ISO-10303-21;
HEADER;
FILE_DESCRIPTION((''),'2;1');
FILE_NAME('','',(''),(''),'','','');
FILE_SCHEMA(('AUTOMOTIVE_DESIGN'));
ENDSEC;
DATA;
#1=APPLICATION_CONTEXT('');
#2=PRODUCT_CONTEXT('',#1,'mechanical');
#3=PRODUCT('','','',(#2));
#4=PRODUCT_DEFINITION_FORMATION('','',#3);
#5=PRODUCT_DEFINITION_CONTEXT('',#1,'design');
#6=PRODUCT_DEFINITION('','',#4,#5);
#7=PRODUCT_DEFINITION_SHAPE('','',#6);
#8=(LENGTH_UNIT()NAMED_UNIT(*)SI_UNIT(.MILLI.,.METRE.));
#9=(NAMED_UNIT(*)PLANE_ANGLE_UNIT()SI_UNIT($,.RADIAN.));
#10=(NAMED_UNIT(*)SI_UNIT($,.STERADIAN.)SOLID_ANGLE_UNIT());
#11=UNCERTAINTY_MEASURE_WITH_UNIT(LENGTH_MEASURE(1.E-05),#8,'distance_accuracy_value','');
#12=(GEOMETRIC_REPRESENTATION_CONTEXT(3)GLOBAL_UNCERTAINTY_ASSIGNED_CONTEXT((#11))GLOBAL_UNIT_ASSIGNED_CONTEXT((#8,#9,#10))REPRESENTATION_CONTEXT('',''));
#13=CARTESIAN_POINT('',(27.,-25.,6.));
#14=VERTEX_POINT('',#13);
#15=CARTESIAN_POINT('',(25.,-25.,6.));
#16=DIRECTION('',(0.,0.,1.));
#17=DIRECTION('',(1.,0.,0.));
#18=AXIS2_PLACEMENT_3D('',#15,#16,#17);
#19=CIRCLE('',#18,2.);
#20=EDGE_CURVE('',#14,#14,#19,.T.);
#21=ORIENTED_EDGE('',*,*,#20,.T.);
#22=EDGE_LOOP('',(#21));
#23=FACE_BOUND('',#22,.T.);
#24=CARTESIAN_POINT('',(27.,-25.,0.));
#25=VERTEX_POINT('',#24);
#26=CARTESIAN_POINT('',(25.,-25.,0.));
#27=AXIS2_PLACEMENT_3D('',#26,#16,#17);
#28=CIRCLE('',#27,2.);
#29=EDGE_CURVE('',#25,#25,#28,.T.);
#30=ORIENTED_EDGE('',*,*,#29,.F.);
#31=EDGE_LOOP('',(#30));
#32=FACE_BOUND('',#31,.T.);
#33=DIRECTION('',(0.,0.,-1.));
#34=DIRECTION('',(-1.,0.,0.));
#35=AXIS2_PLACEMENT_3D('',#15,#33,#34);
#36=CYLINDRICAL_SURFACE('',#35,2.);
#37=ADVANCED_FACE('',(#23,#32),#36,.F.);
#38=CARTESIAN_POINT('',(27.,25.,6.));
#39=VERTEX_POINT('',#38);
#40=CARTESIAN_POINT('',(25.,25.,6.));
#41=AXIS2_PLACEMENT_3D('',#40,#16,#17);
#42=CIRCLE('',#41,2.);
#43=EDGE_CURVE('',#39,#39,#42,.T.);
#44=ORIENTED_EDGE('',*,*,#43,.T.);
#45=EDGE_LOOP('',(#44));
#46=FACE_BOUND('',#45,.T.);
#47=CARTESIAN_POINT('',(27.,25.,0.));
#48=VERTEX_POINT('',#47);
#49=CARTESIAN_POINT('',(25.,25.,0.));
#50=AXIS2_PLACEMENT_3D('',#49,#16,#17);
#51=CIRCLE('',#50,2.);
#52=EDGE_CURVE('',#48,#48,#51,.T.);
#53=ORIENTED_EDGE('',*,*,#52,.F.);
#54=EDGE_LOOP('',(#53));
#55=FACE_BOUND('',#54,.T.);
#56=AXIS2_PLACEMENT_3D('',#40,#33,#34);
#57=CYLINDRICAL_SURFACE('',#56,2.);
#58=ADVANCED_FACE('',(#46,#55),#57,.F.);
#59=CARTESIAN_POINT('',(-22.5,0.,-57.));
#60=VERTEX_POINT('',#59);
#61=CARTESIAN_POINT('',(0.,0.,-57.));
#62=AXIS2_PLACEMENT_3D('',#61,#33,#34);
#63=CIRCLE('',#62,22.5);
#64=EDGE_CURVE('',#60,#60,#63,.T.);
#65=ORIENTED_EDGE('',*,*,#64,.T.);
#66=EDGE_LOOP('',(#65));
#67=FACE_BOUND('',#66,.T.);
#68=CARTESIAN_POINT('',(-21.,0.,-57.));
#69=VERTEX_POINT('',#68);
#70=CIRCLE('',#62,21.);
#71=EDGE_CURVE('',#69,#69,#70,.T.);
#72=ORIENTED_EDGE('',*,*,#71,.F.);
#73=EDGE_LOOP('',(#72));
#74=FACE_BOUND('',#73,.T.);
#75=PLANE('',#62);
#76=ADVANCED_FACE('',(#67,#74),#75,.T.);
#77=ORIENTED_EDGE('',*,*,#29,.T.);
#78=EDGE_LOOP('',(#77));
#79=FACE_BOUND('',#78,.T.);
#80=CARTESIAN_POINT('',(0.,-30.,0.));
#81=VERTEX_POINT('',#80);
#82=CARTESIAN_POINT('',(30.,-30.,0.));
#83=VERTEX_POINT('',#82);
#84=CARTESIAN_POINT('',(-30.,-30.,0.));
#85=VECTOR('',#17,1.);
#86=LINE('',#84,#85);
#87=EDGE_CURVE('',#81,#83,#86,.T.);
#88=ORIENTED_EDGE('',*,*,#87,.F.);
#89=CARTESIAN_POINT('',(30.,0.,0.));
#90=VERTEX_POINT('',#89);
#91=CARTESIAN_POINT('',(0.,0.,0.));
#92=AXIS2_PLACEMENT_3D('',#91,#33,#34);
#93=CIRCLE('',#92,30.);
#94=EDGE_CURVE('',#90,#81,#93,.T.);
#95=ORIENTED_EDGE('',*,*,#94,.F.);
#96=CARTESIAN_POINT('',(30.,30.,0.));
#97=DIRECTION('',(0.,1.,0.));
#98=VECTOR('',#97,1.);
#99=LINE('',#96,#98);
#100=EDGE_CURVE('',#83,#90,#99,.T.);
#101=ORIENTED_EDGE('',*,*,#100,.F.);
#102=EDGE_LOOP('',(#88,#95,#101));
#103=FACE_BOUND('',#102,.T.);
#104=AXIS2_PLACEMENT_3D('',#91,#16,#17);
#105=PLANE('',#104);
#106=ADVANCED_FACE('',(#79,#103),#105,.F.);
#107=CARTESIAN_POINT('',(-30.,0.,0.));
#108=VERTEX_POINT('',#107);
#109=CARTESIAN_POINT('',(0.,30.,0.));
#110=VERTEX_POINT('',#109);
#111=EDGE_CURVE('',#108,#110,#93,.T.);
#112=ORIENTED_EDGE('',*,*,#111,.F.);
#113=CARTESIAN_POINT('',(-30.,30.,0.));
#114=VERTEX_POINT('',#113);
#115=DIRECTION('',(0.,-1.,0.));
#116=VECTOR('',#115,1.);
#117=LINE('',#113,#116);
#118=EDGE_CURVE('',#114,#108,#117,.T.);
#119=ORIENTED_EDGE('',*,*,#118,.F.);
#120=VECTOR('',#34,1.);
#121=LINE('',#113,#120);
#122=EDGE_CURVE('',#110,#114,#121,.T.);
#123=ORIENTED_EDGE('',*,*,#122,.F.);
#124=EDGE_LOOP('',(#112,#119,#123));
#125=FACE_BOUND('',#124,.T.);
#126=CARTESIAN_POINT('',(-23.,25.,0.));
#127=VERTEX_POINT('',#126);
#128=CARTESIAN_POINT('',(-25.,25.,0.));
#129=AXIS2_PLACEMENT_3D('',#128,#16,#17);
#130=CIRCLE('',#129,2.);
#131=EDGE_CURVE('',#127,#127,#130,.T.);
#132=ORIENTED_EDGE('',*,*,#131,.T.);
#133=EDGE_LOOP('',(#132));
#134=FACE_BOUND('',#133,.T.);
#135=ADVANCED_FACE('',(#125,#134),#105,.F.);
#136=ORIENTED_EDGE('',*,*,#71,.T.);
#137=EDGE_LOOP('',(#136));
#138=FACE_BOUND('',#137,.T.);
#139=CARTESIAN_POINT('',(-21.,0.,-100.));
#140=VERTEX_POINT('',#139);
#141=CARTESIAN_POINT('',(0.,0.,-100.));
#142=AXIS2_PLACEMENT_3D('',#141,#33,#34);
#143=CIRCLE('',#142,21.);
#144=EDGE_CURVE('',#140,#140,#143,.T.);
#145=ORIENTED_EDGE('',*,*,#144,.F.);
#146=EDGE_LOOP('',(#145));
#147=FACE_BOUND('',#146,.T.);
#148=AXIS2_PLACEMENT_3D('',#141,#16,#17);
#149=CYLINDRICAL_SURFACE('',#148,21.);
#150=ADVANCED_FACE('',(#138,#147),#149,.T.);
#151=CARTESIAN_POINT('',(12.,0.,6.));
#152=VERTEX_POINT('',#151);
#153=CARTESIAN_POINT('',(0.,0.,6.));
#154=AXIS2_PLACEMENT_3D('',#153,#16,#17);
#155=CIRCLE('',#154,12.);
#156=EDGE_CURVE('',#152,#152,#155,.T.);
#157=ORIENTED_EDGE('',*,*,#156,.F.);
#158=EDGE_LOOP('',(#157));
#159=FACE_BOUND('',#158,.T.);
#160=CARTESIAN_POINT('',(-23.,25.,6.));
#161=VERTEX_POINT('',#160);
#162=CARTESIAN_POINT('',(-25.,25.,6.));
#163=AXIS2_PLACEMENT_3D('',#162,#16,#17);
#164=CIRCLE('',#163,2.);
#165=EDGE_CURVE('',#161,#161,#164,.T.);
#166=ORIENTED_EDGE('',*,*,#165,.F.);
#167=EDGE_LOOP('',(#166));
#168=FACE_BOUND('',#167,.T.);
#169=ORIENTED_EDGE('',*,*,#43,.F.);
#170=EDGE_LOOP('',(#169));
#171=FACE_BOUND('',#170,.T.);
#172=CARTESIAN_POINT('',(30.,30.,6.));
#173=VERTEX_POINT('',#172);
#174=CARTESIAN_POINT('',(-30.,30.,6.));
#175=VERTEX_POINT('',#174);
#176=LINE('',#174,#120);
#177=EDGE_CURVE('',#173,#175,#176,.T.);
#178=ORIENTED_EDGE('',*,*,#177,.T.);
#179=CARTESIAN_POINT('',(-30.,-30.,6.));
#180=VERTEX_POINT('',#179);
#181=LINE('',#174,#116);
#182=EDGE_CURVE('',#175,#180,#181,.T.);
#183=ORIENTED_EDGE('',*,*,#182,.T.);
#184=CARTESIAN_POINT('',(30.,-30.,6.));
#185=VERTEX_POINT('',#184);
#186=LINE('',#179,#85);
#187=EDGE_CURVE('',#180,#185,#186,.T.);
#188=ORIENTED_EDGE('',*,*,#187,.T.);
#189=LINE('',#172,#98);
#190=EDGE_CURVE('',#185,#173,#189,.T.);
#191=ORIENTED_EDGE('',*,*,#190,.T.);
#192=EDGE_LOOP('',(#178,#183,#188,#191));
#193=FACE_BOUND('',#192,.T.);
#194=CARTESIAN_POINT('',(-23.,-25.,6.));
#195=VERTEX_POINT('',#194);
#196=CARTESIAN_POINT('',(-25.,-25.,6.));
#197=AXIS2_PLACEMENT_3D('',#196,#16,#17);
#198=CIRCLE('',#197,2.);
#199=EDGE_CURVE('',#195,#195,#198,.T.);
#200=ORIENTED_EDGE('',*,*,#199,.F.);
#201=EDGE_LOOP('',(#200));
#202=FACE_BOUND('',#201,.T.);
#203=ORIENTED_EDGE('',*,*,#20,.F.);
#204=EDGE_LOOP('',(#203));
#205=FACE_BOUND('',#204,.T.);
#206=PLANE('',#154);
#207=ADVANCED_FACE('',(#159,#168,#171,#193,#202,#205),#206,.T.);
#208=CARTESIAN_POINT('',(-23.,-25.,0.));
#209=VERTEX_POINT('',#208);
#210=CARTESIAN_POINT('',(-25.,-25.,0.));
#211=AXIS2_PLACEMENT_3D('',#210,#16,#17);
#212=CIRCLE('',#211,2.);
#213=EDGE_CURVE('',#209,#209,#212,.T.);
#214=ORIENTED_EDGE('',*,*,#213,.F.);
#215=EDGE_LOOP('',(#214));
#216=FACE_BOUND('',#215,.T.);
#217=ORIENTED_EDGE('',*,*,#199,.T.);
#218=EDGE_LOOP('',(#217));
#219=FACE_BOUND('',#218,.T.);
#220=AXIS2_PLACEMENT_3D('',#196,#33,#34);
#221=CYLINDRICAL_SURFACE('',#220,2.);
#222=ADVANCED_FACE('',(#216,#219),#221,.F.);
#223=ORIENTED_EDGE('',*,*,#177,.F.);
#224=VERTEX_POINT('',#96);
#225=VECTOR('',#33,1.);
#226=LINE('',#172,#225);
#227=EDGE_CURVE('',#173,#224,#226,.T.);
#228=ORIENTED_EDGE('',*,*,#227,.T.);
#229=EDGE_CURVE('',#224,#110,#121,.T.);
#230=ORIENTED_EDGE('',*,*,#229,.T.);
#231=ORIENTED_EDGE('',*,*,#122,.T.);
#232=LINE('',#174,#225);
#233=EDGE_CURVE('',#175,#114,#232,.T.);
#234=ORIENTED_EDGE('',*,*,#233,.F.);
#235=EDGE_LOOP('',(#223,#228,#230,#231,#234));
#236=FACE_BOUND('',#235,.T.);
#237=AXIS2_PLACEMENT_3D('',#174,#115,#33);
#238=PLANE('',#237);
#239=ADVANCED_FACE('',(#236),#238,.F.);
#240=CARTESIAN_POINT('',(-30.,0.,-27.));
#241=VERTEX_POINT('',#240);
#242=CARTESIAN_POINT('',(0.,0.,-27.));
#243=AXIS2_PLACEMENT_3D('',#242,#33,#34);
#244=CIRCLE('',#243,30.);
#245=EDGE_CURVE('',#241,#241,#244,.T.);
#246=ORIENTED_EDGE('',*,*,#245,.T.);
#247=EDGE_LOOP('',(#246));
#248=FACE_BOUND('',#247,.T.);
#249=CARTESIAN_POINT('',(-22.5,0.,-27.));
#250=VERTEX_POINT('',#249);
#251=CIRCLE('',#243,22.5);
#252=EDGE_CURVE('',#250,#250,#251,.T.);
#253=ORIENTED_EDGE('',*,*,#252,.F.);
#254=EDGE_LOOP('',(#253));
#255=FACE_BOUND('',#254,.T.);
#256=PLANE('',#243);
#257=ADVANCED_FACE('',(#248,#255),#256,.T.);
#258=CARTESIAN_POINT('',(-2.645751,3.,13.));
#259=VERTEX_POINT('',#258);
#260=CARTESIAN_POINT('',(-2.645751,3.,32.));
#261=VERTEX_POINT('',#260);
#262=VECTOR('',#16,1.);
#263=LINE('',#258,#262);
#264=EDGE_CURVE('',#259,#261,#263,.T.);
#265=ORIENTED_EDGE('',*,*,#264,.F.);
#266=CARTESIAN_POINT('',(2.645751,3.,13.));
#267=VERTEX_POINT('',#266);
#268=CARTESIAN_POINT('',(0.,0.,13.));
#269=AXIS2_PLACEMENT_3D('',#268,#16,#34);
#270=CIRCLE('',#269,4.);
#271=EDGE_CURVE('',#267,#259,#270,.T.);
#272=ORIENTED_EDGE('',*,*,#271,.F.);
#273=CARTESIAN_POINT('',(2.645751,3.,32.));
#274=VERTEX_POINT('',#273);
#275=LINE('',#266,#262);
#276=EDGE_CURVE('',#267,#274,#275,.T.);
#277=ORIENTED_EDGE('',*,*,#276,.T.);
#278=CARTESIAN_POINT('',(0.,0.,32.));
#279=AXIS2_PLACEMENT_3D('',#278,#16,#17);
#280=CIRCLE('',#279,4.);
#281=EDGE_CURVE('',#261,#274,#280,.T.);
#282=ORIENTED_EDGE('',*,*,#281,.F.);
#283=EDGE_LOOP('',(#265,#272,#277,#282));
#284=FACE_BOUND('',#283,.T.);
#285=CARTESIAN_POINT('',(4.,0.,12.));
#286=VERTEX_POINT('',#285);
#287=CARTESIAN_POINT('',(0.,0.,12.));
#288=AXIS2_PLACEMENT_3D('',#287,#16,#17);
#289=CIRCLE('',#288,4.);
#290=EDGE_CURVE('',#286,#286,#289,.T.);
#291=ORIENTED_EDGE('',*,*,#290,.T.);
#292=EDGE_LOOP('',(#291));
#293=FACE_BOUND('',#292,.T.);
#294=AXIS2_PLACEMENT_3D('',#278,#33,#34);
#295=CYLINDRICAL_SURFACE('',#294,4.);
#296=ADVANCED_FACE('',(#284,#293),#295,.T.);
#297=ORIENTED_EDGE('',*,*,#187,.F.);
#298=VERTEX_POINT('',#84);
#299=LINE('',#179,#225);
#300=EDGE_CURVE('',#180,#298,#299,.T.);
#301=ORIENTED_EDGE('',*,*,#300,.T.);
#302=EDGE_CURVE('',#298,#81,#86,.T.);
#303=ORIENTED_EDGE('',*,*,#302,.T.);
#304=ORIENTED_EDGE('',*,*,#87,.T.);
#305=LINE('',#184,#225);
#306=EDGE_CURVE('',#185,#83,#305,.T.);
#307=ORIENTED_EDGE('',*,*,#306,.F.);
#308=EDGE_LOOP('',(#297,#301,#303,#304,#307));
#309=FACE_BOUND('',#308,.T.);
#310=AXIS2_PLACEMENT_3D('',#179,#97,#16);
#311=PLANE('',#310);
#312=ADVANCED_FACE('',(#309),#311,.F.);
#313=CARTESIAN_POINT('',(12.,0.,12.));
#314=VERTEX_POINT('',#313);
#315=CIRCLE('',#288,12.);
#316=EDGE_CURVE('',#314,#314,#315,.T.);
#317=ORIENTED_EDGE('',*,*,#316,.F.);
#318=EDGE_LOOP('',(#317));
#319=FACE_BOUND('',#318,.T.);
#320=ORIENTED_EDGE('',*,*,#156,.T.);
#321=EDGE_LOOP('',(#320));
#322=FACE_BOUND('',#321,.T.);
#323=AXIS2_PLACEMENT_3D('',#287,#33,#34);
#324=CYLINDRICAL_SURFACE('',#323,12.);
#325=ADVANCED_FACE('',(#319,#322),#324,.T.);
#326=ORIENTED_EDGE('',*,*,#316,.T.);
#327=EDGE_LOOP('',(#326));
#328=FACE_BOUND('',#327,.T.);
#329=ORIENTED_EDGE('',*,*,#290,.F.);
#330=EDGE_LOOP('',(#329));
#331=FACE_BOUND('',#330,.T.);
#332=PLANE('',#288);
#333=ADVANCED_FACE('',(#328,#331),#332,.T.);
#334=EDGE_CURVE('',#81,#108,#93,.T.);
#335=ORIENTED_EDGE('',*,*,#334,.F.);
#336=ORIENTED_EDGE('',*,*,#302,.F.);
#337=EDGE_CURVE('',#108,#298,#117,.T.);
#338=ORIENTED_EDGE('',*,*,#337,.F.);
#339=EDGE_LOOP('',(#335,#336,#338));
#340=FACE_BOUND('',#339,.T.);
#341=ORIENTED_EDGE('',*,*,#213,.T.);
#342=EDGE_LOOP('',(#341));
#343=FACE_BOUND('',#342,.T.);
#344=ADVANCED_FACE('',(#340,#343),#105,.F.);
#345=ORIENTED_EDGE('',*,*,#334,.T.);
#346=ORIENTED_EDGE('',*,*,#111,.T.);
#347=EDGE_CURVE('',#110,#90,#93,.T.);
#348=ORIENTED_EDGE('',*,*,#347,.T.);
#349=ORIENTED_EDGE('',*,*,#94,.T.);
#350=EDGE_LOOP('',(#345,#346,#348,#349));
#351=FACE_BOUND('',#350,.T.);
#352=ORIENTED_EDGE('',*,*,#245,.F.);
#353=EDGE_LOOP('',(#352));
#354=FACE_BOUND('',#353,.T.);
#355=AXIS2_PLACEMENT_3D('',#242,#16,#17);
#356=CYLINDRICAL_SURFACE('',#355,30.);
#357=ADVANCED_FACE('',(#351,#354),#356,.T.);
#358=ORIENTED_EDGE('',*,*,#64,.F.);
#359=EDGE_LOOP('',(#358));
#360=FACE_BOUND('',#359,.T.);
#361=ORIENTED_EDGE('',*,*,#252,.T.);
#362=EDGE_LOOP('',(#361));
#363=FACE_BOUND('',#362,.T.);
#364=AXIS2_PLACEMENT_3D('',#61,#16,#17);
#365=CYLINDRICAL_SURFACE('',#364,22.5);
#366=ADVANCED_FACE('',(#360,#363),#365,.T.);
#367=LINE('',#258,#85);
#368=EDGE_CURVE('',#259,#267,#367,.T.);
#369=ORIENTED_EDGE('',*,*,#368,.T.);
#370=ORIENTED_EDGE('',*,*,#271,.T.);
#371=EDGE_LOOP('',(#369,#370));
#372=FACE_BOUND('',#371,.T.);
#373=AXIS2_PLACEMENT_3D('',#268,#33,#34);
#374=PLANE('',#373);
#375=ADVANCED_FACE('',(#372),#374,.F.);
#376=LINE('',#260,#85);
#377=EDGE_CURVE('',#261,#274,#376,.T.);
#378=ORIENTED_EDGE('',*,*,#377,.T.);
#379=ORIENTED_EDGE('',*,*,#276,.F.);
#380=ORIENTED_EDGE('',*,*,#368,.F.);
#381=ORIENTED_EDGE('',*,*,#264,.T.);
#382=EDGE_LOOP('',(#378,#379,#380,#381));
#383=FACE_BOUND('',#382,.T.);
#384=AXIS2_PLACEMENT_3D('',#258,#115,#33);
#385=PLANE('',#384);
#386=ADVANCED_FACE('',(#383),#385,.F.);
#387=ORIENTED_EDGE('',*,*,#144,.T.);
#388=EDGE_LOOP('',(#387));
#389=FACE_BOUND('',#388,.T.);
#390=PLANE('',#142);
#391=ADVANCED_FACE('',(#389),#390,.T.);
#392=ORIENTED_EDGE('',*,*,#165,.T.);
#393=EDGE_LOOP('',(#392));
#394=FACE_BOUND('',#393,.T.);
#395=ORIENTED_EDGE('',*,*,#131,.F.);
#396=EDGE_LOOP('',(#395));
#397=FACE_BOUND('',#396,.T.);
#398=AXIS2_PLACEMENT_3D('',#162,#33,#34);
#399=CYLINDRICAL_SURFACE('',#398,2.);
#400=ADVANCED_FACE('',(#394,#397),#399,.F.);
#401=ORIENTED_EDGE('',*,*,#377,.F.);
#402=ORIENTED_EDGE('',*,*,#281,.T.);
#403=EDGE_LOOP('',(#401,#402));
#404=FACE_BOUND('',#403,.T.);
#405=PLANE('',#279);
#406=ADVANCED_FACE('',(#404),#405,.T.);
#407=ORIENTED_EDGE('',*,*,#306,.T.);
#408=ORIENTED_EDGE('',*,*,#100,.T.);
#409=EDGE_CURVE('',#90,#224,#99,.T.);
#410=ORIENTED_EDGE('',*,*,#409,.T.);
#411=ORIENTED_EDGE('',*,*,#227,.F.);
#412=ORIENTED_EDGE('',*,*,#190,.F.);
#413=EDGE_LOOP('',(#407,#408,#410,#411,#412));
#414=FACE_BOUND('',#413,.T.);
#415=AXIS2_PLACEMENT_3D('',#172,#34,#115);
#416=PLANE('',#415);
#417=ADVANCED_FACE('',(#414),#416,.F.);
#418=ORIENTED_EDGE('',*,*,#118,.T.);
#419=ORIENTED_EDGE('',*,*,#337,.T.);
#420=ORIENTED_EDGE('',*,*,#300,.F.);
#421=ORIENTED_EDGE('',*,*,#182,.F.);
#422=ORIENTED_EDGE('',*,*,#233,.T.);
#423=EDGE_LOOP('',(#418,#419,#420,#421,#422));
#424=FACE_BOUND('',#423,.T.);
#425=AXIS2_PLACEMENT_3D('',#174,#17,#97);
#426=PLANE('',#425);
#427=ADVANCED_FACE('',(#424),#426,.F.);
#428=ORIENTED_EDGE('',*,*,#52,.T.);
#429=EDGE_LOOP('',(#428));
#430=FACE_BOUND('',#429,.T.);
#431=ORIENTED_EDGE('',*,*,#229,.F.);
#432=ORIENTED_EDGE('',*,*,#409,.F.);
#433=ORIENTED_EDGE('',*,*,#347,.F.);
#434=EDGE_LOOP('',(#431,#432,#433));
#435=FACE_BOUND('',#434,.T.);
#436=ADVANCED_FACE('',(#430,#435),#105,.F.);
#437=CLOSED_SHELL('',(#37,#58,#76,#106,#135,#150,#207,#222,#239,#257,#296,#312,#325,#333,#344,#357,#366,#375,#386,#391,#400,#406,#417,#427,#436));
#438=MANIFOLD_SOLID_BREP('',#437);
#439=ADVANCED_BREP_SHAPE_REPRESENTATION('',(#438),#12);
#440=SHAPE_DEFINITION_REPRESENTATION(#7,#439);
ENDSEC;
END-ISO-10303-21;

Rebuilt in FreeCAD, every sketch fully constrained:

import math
import FreeCAD as App
import Part
import Sketcher
from FreeCAD import Vector


def add_polygon(sketch, points):
    """Adds a closed chain of lines whose ends are joined by coincident constraints."""
    first, n = sketch.GeometryCount, len(points)
    for a, b in zip(points, points[1:] + points[:1]):
        sketch.addGeometry(Part.LineSegment(App.Vector(*a, 0), App.Vector(*b, 0)), False)
    for i in range(n):
        sketch.addConstraint(Sketcher.Constraint("Coincident", first + i, 2, first + (i + 1) % n, 1))

doc = App.newDocument("Part")
body = doc.addObject("PartDesign::Body", "Body")

# Sketch on XY plane
sketch1 = doc.addObject("Sketcher::SketchObject", "Sketch")
body.addObject(sketch1)
sketch1.AttachmentSupport = (doc.XY_Plane, [""])
sketch1.MapMode = "FlatFace"
add_polygon(sketch1, [(-30, 30), (-30, -30), (30, -30), (30, 30)])  # lines 0-3
sketch1.addGeometry(Part.Circle(Vector(-25, -25, 0), Vector(0, 0, 1), 2), False)  # 4
sketch1.addGeometry(Part.Circle(Vector(25, -25, 0), Vector(0, 0, 1), 2), False)  # 5
sketch1.addGeometry(Part.Circle(Vector(-25, 25, 0), Vector(0, 0, 1), 2), False)  # 6
sketch1.addGeometry(Part.Circle(Vector(25, 25, 0), Vector(0, 0, 1), 2), False)  # 7
sketch1.addConstraint([
    Sketcher.Constraint("Vertical", 0),
    Sketcher.Constraint("Horizontal", 1),
    Sketcher.Constraint("Vertical", 2),
    Sketcher.Constraint("Horizontal", 3),
    Sketcher.Constraint("Equal", 4, 5),
    Sketcher.Constraint("Equal", 5, 6),
    Sketcher.Constraint("Equal", 6, 7),
    Sketcher.Constraint("Symmetric", 5, 3, 6, 3, -1, 1),
    Sketcher.Constraint("Symmetric", 4, 3, 7, 3, -1, 1),
    Sketcher.Constraint("Symmetric", 0, 2, 2, 2, -1, 1),
    Sketcher.Constraint("Symmetric", 4, 3, 5, 3, -2),
    Sketcher.Constraint("Equal", 3, 0),
    Sketcher.Constraint("Diameter", 4, 4.0),
    Sketcher.Constraint("DistanceX", 1, 1, 1, 2, 60.0),
    Sketcher.Constraint("DistanceX", 4, 3, -1, 1, 25.0),
    Sketcher.Constraint("DistanceY", 4, 3, -1, 1, 25.0),
])
pad1 = doc.addObject("PartDesign::Pad", "Pad")
body.addObject(pad1)
pad1.Profile = sketch1
pad1.Length = 6

# Sketch on XY plane
sketch2 = doc.addObject("Sketcher::SketchObject", "Sketch001")
body.addObject(sketch2)
sketch2.AttachmentSupport = (doc.XY_Plane, [""])
sketch2.MapMode = "FlatFace"
sketch2.AttachmentOffset = App.Placement(Vector(0, 0, 6), App.Rotation())
sketch2.addGeometry(Part.Circle(Vector(0, 0, 0), Vector(0, 0, 1), 12), False)
sketch2.addConstraint([
    Sketcher.Constraint("Coincident", 0, 3, -1, 1),
    Sketcher.Constraint("Diameter", 0, 24.0),
])
pad2 = doc.addObject("PartDesign::Pad", "Pad001")
body.addObject(pad2)
pad2.Profile = sketch2
pad2.Length = 6

# Sketch on XY plane
sketch3 = doc.addObject("Sketcher::SketchObject", "Sketch002")
body.addObject(sketch3)
sketch3.AttachmentSupport = (doc.XY_Plane, [""])
sketch3.MapMode = "FlatFace"
sketch3.AttachmentOffset = App.Placement(Vector(0, 0, 12), App.Rotation())
sketch3.addGeometry(Part.Circle(Vector(0, 0, 0), Vector(0, 0, 1), 4), False)
sketch3.addConstraint([
    Sketcher.Constraint("Coincident", 0, 3, -1, 1),
    Sketcher.Constraint("Diameter", 0, 8.0),
])
pad3 = doc.addObject("PartDesign::Pad", "Pad002")
body.addObject(pad3)
pad3.Profile = sketch3
pad3.Length = 20

# Sketch on XY plane
sketch4 = doc.addObject("Sketcher::SketchObject", "Sketch003")
body.addObject(sketch4)
sketch4.AttachmentSupport = (doc.XY_Plane, [""])
sketch4.MapMode = "FlatFace"
sketch4.AttachmentOffset = App.Placement(Vector(0, 0, 13), App.Rotation())
sketch4.addGeometry([
    Part.LineSegment(Vector(-2.6, 3, 0), Vector(2.6, 3, 0)),
    Part.ArcOfCircle(Part.Circle(Vector(0, 0, 0), Vector(0, 0, 1), 4), math.radians(49), math.radians(131)),
], False)
sketch4.addConstraint([
    Sketcher.Constraint("Coincident", 0, 1, 1, 2),
    Sketcher.Constraint("Coincident", 1, 1, 0, 2),
    Sketcher.Constraint("Horizontal", 0),
    Sketcher.Constraint("Coincident", 1, 3, -1, 1),
    Sketcher.Constraint("Radius", 1, 4.0),
    Sketcher.Constraint("DistanceY", -1, 1, 0, 1, 3.0),
])
pocket1 = doc.addObject("PartDesign::Pocket", "Pocket")
body.addObject(pocket1)
pocket1.Profile = sketch4
pocket1.Length = 19
pocket1.Reversed = True

# Sketch on XY plane
sketch5 = doc.addObject("Sketcher::SketchObject", "Sketch004")
body.addObject(sketch5)
sketch5.AttachmentSupport = (doc.XY_Plane, [""])
sketch5.MapMode = "FlatFace"
sketch5.addGeometry(Part.Circle(Vector(0, 0, 0), Vector(0, 0, 1), 30), False)
sketch5.addConstraint([
    Sketcher.Constraint("Coincident", 0, 3, -1, 1),
    Sketcher.Constraint("Diameter", 0, 60.0),
])
pad4 = doc.addObject("PartDesign::Pad", "Pad003")
body.addObject(pad4)
pad4.Profile = sketch5
pad4.Length = 27
pad4.Reversed = True

# Sketch on XY plane
sketch6 = doc.addObject("Sketcher::SketchObject", "Sketch005")
body.addObject(sketch6)
sketch6.AttachmentSupport = (doc.XY_Plane, [""])
sketch6.MapMode = "FlatFace"
sketch6.AttachmentOffset = App.Placement(Vector(0, 0, -27), App.Rotation())
sketch6.addGeometry(Part.Circle(Vector(0, 0, 0), Vector(0, 0, 1), 22), False)
sketch6.addConstraint([
    Sketcher.Constraint("Coincident", 0, 3, -1, 1),
    Sketcher.Constraint("Diameter", 0, 45.0),
])
pad5 = doc.addObject("PartDesign::Pad", "Pad004")
body.addObject(pad5)
pad5.Profile = sketch6
pad5.Length = 30
pad5.Reversed = True

# Sketch on XY plane
sketch7 = doc.addObject("Sketcher::SketchObject", "Sketch006")
body.addObject(sketch7)
sketch7.AttachmentSupport = (doc.XY_Plane, [""])
sketch7.MapMode = "FlatFace"
sketch7.AttachmentOffset = App.Placement(Vector(0, 0, -57), App.Rotation())
sketch7.addGeometry(Part.Circle(Vector(0, 0, 0), Vector(0, 0, 1), 21), False)
sketch7.addConstraint([
    Sketcher.Constraint("Coincident", 0, 3, -1, 1),
    Sketcher.Constraint("Diameter", 0, 42.0),
])
pad6 = doc.addObject("PartDesign::Pad", "Pad005")
body.addObject(pad6)
pad6.Profile = sketch7
pad6.Length = 43
pad6.Reversed = True

doc.recompute()
